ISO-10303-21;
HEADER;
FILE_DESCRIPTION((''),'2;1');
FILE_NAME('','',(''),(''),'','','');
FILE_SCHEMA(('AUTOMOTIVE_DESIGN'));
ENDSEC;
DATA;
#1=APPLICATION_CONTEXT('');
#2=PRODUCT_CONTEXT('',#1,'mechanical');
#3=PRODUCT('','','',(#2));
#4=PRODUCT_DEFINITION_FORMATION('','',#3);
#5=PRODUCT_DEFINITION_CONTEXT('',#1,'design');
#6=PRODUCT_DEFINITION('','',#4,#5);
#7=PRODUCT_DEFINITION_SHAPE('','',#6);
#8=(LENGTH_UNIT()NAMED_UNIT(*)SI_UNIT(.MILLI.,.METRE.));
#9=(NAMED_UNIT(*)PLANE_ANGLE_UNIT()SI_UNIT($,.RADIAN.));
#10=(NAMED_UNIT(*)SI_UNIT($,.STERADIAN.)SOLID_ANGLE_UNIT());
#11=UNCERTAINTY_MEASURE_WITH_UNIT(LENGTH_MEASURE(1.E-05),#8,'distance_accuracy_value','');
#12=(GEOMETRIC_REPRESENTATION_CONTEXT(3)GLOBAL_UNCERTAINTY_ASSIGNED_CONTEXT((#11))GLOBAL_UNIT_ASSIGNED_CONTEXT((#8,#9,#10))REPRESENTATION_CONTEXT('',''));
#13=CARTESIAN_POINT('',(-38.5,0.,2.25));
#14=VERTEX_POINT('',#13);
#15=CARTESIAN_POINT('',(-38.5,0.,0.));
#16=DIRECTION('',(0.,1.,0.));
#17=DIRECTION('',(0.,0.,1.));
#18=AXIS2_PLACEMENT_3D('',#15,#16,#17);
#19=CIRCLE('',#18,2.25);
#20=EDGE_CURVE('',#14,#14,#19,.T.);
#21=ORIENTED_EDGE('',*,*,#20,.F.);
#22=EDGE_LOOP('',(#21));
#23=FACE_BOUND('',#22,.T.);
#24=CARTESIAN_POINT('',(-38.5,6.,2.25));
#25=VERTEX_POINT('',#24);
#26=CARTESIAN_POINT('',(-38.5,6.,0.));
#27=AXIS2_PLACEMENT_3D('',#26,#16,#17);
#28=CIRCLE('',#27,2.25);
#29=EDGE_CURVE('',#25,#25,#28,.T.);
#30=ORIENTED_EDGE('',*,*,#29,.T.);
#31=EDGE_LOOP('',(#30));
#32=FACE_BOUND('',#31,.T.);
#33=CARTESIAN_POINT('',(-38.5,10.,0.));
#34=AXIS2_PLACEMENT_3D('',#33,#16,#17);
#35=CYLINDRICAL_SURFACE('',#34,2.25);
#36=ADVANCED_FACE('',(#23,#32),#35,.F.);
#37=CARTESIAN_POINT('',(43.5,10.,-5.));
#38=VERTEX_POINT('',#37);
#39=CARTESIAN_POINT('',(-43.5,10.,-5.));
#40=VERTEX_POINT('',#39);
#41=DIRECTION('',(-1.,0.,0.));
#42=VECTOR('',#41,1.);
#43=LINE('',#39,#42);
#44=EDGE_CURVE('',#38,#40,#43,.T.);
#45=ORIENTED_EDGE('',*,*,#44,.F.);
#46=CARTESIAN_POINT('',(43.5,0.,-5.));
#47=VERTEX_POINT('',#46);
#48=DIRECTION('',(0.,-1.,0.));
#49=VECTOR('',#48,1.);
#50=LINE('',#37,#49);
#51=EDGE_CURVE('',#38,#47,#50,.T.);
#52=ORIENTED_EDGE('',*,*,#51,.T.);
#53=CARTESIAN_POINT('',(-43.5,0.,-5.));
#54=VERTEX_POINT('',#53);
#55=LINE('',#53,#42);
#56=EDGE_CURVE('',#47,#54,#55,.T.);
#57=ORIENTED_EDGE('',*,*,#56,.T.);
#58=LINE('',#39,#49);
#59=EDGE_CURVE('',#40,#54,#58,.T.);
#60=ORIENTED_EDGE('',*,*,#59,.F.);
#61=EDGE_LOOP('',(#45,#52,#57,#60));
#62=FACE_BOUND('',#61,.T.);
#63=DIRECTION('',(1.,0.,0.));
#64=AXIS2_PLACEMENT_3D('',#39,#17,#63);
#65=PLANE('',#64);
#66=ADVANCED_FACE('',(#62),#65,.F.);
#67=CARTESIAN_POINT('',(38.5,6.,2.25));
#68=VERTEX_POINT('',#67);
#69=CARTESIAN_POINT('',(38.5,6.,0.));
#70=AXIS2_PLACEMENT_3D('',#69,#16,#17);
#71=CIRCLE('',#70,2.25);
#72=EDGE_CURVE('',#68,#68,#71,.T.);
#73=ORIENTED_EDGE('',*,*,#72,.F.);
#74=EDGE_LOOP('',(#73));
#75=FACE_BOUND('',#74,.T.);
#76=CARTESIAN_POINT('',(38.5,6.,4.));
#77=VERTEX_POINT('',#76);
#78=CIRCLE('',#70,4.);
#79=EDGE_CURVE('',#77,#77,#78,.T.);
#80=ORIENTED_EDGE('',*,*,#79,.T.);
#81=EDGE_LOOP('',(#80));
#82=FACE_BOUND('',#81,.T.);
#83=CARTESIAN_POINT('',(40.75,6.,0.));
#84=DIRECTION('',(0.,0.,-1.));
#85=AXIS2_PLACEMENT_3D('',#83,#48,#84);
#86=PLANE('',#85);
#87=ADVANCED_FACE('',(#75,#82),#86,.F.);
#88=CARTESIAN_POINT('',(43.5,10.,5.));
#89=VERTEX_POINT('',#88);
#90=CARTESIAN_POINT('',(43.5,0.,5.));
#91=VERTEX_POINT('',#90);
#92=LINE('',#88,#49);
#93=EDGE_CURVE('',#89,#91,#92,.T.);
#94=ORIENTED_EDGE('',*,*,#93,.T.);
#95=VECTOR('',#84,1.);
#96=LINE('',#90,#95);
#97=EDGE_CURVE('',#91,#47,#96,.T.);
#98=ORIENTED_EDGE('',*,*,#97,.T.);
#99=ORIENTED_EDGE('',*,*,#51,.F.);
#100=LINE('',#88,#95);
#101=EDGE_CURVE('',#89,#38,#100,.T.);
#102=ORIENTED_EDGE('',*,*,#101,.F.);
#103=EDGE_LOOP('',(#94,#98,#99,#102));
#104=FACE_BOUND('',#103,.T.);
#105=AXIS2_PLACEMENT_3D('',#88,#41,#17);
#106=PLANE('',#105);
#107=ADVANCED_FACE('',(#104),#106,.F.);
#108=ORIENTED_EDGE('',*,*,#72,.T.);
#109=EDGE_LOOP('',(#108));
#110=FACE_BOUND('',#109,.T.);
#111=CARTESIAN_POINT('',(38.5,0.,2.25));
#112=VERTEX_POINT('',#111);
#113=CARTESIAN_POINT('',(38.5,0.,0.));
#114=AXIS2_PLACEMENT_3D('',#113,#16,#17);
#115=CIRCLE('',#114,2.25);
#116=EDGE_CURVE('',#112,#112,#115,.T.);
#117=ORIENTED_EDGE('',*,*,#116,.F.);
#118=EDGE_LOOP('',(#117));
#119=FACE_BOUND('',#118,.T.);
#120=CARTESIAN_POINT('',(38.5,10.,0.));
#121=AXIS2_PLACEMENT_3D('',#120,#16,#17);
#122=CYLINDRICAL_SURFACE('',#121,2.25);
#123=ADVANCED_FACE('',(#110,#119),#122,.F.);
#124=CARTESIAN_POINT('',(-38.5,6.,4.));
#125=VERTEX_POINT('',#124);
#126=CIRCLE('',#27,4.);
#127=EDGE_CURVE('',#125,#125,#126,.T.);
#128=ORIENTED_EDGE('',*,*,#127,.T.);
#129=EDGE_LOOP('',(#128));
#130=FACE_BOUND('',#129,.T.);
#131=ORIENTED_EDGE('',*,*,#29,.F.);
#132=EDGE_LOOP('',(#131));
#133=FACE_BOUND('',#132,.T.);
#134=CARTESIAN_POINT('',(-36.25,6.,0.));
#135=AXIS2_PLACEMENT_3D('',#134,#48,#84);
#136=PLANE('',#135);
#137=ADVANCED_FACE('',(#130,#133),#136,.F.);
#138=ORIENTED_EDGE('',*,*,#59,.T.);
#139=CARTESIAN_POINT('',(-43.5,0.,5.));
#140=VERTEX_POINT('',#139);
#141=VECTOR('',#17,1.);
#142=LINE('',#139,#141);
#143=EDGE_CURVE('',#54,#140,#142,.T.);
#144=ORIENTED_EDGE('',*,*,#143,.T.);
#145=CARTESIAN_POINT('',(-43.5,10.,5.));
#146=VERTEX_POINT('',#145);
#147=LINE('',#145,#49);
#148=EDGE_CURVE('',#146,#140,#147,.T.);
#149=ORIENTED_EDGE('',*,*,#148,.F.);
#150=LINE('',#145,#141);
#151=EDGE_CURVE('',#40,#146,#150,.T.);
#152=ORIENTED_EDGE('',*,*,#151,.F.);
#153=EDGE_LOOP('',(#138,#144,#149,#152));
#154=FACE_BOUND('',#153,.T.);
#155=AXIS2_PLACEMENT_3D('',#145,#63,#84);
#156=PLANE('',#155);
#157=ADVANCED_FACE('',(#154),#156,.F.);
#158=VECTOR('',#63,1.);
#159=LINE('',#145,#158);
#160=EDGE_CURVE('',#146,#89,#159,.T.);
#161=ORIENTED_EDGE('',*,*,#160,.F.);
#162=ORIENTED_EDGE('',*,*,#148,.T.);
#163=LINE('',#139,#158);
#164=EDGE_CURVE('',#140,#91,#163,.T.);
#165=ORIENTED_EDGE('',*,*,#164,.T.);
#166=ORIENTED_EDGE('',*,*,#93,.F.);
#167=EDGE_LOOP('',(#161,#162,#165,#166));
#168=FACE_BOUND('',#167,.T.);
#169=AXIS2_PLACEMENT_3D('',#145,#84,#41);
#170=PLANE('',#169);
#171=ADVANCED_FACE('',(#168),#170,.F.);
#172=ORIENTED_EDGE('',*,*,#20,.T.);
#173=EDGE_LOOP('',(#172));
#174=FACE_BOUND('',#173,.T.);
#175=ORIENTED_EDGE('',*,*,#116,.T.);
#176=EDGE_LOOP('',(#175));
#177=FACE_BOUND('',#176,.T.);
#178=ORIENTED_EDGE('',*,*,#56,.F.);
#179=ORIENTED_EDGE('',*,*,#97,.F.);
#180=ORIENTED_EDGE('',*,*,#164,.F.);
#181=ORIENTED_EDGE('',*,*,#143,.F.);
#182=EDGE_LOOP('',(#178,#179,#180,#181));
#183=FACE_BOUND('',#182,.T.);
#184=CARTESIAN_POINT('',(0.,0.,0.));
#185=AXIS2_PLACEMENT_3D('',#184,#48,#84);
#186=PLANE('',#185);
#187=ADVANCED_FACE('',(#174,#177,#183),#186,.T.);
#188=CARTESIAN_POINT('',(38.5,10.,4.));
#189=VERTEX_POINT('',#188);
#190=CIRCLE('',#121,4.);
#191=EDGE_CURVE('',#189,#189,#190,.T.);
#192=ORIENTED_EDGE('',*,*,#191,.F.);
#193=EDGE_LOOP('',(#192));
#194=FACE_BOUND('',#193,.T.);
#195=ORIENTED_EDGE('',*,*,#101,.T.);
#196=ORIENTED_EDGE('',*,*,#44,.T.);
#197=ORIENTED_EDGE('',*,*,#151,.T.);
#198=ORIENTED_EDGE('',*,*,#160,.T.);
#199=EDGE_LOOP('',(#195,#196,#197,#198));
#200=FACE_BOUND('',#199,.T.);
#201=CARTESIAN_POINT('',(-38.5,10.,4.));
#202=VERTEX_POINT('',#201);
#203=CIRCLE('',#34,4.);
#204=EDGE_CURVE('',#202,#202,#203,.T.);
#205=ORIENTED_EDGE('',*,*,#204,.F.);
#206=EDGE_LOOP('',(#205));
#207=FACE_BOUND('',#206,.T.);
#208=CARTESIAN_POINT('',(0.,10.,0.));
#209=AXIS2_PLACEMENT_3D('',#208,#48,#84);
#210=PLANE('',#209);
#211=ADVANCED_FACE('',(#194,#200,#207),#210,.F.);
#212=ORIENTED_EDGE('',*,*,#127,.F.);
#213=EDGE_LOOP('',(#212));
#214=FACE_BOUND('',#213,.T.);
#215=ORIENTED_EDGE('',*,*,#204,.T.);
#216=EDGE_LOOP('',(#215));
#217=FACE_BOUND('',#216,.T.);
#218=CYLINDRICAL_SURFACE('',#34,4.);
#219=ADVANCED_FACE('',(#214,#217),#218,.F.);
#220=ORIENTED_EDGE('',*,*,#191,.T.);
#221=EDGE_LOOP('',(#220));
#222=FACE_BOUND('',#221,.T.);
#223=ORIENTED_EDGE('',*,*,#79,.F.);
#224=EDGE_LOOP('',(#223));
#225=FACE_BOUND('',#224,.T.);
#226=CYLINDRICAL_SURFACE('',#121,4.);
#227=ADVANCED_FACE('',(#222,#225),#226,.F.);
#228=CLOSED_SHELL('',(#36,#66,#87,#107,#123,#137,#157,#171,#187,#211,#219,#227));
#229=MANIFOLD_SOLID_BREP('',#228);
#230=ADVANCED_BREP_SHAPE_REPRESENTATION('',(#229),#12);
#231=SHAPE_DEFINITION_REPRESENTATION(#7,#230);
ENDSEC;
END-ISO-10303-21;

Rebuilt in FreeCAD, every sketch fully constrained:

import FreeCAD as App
import Part
import Sketcher
from FreeCAD import Vector
Q = App.Units.Quantity

doc = App.newDocument("Part")
body = doc.addObject("PartDesign::Body", "Body")

# Sketch on XZ plane
sketch1 = body.newObject("Sketcher::SketchObject", "Sketch")
sketch1.AttachmentSupport = (doc.getObject("XZ_Plane"), [""])
sketch1.MapMode = "FlatFace"
sketch1.addGeometry([
    Part.LineSegment(Vector(-44, -5, 0), Vector(-44, 5, 0)),
    Part.LineSegment(Vector(-44, 5, 0), Vector(44, 5, 0)),
    Part.LineSegment(Vector(44, 5, 0), Vector(44, -5, 0)),
    Part.LineSegment(Vector(44, -5, 0), Vector(-44, -5, 0)),
], False)
sketch1.addConstraint([
    Sketcher.Constraint("Coincident", 0, 2, 1, 1),
    Sketcher.Constraint("Coincident", 1, 2, 2, 1),
    Sketcher.Constraint("Coincident", 2, 2, 3, 1),
    Sketcher.Constraint("Coincident", 3, 2, 0, 1),
    Sketcher.Constraint("Vertical", 0),
    Sketcher.Constraint("Horizontal", 1),
    Sketcher.Constraint("Vertical", 2),
    Sketcher.Constraint("Horizontal", 3),
    Sketcher.Constraint("Symmetric", 0, 2, 2, 2, -1, 1),
    Sketcher.Constraint("DistanceX", 1, 1, 1, 2, Q("87 mm")),
    Sketcher.Constraint("DistanceY", 0, 1, 0, 2, Q("10 mm")),
])
pad1 = body.newObject("PartDesign::Pad", "Pad")
pad1.Profile = sketch1
pad1.Length = 10
pad1.Reversed = True

# Sketch on XZ plane
sketch2 = body.newObject("Sketcher::SketchObject", "Sketch001")
sketch2.AttachmentSupport = (doc.getObject("XZ_Plane"), [""])
sketch2.MapMode = "FlatFace"
sketch2.AttachmentOffset = App.Placement(Vector(0, 0, -10), App.Rotation())
sketch2.addGeometry(Part.Circle(Vector(-38.5, 0, 0), Vector(0, 0, 1), 2.2), False)
sketch2.addConstraint([
    Sketcher.Constraint("PointOnObject", 0, 3, -1),
    Sketcher.Constraint("Diameter", 0, Q("4.5 mm")),
    Sketcher.Constraint("DistanceX", 0, 3, -1, 1, Q("38.5 mm")),
])
doc.recompute()
hole = body.newObject("PartDesign::Hole", "Hole")
hole.Profile = sketch2
hole.ThreadType = "None"
hole.Diameter = 4.5
hole.DepthType = "ThroughAll"
hole.HoleCutType = "Counterbore"
hole.HoleCutDiameter = 8
hole.HoleCutDepth = 4
hole.Reversed = True
doc.recompute()

mirrored = body.newObject("PartDesign::Mirrored", "Mirrored")
mirrored.Originals = [hole]
mirrored.MirrorPlane = (doc.getObject("YZ_Plane"), [""])
body.Tip = mirrored

doc.recompute()
